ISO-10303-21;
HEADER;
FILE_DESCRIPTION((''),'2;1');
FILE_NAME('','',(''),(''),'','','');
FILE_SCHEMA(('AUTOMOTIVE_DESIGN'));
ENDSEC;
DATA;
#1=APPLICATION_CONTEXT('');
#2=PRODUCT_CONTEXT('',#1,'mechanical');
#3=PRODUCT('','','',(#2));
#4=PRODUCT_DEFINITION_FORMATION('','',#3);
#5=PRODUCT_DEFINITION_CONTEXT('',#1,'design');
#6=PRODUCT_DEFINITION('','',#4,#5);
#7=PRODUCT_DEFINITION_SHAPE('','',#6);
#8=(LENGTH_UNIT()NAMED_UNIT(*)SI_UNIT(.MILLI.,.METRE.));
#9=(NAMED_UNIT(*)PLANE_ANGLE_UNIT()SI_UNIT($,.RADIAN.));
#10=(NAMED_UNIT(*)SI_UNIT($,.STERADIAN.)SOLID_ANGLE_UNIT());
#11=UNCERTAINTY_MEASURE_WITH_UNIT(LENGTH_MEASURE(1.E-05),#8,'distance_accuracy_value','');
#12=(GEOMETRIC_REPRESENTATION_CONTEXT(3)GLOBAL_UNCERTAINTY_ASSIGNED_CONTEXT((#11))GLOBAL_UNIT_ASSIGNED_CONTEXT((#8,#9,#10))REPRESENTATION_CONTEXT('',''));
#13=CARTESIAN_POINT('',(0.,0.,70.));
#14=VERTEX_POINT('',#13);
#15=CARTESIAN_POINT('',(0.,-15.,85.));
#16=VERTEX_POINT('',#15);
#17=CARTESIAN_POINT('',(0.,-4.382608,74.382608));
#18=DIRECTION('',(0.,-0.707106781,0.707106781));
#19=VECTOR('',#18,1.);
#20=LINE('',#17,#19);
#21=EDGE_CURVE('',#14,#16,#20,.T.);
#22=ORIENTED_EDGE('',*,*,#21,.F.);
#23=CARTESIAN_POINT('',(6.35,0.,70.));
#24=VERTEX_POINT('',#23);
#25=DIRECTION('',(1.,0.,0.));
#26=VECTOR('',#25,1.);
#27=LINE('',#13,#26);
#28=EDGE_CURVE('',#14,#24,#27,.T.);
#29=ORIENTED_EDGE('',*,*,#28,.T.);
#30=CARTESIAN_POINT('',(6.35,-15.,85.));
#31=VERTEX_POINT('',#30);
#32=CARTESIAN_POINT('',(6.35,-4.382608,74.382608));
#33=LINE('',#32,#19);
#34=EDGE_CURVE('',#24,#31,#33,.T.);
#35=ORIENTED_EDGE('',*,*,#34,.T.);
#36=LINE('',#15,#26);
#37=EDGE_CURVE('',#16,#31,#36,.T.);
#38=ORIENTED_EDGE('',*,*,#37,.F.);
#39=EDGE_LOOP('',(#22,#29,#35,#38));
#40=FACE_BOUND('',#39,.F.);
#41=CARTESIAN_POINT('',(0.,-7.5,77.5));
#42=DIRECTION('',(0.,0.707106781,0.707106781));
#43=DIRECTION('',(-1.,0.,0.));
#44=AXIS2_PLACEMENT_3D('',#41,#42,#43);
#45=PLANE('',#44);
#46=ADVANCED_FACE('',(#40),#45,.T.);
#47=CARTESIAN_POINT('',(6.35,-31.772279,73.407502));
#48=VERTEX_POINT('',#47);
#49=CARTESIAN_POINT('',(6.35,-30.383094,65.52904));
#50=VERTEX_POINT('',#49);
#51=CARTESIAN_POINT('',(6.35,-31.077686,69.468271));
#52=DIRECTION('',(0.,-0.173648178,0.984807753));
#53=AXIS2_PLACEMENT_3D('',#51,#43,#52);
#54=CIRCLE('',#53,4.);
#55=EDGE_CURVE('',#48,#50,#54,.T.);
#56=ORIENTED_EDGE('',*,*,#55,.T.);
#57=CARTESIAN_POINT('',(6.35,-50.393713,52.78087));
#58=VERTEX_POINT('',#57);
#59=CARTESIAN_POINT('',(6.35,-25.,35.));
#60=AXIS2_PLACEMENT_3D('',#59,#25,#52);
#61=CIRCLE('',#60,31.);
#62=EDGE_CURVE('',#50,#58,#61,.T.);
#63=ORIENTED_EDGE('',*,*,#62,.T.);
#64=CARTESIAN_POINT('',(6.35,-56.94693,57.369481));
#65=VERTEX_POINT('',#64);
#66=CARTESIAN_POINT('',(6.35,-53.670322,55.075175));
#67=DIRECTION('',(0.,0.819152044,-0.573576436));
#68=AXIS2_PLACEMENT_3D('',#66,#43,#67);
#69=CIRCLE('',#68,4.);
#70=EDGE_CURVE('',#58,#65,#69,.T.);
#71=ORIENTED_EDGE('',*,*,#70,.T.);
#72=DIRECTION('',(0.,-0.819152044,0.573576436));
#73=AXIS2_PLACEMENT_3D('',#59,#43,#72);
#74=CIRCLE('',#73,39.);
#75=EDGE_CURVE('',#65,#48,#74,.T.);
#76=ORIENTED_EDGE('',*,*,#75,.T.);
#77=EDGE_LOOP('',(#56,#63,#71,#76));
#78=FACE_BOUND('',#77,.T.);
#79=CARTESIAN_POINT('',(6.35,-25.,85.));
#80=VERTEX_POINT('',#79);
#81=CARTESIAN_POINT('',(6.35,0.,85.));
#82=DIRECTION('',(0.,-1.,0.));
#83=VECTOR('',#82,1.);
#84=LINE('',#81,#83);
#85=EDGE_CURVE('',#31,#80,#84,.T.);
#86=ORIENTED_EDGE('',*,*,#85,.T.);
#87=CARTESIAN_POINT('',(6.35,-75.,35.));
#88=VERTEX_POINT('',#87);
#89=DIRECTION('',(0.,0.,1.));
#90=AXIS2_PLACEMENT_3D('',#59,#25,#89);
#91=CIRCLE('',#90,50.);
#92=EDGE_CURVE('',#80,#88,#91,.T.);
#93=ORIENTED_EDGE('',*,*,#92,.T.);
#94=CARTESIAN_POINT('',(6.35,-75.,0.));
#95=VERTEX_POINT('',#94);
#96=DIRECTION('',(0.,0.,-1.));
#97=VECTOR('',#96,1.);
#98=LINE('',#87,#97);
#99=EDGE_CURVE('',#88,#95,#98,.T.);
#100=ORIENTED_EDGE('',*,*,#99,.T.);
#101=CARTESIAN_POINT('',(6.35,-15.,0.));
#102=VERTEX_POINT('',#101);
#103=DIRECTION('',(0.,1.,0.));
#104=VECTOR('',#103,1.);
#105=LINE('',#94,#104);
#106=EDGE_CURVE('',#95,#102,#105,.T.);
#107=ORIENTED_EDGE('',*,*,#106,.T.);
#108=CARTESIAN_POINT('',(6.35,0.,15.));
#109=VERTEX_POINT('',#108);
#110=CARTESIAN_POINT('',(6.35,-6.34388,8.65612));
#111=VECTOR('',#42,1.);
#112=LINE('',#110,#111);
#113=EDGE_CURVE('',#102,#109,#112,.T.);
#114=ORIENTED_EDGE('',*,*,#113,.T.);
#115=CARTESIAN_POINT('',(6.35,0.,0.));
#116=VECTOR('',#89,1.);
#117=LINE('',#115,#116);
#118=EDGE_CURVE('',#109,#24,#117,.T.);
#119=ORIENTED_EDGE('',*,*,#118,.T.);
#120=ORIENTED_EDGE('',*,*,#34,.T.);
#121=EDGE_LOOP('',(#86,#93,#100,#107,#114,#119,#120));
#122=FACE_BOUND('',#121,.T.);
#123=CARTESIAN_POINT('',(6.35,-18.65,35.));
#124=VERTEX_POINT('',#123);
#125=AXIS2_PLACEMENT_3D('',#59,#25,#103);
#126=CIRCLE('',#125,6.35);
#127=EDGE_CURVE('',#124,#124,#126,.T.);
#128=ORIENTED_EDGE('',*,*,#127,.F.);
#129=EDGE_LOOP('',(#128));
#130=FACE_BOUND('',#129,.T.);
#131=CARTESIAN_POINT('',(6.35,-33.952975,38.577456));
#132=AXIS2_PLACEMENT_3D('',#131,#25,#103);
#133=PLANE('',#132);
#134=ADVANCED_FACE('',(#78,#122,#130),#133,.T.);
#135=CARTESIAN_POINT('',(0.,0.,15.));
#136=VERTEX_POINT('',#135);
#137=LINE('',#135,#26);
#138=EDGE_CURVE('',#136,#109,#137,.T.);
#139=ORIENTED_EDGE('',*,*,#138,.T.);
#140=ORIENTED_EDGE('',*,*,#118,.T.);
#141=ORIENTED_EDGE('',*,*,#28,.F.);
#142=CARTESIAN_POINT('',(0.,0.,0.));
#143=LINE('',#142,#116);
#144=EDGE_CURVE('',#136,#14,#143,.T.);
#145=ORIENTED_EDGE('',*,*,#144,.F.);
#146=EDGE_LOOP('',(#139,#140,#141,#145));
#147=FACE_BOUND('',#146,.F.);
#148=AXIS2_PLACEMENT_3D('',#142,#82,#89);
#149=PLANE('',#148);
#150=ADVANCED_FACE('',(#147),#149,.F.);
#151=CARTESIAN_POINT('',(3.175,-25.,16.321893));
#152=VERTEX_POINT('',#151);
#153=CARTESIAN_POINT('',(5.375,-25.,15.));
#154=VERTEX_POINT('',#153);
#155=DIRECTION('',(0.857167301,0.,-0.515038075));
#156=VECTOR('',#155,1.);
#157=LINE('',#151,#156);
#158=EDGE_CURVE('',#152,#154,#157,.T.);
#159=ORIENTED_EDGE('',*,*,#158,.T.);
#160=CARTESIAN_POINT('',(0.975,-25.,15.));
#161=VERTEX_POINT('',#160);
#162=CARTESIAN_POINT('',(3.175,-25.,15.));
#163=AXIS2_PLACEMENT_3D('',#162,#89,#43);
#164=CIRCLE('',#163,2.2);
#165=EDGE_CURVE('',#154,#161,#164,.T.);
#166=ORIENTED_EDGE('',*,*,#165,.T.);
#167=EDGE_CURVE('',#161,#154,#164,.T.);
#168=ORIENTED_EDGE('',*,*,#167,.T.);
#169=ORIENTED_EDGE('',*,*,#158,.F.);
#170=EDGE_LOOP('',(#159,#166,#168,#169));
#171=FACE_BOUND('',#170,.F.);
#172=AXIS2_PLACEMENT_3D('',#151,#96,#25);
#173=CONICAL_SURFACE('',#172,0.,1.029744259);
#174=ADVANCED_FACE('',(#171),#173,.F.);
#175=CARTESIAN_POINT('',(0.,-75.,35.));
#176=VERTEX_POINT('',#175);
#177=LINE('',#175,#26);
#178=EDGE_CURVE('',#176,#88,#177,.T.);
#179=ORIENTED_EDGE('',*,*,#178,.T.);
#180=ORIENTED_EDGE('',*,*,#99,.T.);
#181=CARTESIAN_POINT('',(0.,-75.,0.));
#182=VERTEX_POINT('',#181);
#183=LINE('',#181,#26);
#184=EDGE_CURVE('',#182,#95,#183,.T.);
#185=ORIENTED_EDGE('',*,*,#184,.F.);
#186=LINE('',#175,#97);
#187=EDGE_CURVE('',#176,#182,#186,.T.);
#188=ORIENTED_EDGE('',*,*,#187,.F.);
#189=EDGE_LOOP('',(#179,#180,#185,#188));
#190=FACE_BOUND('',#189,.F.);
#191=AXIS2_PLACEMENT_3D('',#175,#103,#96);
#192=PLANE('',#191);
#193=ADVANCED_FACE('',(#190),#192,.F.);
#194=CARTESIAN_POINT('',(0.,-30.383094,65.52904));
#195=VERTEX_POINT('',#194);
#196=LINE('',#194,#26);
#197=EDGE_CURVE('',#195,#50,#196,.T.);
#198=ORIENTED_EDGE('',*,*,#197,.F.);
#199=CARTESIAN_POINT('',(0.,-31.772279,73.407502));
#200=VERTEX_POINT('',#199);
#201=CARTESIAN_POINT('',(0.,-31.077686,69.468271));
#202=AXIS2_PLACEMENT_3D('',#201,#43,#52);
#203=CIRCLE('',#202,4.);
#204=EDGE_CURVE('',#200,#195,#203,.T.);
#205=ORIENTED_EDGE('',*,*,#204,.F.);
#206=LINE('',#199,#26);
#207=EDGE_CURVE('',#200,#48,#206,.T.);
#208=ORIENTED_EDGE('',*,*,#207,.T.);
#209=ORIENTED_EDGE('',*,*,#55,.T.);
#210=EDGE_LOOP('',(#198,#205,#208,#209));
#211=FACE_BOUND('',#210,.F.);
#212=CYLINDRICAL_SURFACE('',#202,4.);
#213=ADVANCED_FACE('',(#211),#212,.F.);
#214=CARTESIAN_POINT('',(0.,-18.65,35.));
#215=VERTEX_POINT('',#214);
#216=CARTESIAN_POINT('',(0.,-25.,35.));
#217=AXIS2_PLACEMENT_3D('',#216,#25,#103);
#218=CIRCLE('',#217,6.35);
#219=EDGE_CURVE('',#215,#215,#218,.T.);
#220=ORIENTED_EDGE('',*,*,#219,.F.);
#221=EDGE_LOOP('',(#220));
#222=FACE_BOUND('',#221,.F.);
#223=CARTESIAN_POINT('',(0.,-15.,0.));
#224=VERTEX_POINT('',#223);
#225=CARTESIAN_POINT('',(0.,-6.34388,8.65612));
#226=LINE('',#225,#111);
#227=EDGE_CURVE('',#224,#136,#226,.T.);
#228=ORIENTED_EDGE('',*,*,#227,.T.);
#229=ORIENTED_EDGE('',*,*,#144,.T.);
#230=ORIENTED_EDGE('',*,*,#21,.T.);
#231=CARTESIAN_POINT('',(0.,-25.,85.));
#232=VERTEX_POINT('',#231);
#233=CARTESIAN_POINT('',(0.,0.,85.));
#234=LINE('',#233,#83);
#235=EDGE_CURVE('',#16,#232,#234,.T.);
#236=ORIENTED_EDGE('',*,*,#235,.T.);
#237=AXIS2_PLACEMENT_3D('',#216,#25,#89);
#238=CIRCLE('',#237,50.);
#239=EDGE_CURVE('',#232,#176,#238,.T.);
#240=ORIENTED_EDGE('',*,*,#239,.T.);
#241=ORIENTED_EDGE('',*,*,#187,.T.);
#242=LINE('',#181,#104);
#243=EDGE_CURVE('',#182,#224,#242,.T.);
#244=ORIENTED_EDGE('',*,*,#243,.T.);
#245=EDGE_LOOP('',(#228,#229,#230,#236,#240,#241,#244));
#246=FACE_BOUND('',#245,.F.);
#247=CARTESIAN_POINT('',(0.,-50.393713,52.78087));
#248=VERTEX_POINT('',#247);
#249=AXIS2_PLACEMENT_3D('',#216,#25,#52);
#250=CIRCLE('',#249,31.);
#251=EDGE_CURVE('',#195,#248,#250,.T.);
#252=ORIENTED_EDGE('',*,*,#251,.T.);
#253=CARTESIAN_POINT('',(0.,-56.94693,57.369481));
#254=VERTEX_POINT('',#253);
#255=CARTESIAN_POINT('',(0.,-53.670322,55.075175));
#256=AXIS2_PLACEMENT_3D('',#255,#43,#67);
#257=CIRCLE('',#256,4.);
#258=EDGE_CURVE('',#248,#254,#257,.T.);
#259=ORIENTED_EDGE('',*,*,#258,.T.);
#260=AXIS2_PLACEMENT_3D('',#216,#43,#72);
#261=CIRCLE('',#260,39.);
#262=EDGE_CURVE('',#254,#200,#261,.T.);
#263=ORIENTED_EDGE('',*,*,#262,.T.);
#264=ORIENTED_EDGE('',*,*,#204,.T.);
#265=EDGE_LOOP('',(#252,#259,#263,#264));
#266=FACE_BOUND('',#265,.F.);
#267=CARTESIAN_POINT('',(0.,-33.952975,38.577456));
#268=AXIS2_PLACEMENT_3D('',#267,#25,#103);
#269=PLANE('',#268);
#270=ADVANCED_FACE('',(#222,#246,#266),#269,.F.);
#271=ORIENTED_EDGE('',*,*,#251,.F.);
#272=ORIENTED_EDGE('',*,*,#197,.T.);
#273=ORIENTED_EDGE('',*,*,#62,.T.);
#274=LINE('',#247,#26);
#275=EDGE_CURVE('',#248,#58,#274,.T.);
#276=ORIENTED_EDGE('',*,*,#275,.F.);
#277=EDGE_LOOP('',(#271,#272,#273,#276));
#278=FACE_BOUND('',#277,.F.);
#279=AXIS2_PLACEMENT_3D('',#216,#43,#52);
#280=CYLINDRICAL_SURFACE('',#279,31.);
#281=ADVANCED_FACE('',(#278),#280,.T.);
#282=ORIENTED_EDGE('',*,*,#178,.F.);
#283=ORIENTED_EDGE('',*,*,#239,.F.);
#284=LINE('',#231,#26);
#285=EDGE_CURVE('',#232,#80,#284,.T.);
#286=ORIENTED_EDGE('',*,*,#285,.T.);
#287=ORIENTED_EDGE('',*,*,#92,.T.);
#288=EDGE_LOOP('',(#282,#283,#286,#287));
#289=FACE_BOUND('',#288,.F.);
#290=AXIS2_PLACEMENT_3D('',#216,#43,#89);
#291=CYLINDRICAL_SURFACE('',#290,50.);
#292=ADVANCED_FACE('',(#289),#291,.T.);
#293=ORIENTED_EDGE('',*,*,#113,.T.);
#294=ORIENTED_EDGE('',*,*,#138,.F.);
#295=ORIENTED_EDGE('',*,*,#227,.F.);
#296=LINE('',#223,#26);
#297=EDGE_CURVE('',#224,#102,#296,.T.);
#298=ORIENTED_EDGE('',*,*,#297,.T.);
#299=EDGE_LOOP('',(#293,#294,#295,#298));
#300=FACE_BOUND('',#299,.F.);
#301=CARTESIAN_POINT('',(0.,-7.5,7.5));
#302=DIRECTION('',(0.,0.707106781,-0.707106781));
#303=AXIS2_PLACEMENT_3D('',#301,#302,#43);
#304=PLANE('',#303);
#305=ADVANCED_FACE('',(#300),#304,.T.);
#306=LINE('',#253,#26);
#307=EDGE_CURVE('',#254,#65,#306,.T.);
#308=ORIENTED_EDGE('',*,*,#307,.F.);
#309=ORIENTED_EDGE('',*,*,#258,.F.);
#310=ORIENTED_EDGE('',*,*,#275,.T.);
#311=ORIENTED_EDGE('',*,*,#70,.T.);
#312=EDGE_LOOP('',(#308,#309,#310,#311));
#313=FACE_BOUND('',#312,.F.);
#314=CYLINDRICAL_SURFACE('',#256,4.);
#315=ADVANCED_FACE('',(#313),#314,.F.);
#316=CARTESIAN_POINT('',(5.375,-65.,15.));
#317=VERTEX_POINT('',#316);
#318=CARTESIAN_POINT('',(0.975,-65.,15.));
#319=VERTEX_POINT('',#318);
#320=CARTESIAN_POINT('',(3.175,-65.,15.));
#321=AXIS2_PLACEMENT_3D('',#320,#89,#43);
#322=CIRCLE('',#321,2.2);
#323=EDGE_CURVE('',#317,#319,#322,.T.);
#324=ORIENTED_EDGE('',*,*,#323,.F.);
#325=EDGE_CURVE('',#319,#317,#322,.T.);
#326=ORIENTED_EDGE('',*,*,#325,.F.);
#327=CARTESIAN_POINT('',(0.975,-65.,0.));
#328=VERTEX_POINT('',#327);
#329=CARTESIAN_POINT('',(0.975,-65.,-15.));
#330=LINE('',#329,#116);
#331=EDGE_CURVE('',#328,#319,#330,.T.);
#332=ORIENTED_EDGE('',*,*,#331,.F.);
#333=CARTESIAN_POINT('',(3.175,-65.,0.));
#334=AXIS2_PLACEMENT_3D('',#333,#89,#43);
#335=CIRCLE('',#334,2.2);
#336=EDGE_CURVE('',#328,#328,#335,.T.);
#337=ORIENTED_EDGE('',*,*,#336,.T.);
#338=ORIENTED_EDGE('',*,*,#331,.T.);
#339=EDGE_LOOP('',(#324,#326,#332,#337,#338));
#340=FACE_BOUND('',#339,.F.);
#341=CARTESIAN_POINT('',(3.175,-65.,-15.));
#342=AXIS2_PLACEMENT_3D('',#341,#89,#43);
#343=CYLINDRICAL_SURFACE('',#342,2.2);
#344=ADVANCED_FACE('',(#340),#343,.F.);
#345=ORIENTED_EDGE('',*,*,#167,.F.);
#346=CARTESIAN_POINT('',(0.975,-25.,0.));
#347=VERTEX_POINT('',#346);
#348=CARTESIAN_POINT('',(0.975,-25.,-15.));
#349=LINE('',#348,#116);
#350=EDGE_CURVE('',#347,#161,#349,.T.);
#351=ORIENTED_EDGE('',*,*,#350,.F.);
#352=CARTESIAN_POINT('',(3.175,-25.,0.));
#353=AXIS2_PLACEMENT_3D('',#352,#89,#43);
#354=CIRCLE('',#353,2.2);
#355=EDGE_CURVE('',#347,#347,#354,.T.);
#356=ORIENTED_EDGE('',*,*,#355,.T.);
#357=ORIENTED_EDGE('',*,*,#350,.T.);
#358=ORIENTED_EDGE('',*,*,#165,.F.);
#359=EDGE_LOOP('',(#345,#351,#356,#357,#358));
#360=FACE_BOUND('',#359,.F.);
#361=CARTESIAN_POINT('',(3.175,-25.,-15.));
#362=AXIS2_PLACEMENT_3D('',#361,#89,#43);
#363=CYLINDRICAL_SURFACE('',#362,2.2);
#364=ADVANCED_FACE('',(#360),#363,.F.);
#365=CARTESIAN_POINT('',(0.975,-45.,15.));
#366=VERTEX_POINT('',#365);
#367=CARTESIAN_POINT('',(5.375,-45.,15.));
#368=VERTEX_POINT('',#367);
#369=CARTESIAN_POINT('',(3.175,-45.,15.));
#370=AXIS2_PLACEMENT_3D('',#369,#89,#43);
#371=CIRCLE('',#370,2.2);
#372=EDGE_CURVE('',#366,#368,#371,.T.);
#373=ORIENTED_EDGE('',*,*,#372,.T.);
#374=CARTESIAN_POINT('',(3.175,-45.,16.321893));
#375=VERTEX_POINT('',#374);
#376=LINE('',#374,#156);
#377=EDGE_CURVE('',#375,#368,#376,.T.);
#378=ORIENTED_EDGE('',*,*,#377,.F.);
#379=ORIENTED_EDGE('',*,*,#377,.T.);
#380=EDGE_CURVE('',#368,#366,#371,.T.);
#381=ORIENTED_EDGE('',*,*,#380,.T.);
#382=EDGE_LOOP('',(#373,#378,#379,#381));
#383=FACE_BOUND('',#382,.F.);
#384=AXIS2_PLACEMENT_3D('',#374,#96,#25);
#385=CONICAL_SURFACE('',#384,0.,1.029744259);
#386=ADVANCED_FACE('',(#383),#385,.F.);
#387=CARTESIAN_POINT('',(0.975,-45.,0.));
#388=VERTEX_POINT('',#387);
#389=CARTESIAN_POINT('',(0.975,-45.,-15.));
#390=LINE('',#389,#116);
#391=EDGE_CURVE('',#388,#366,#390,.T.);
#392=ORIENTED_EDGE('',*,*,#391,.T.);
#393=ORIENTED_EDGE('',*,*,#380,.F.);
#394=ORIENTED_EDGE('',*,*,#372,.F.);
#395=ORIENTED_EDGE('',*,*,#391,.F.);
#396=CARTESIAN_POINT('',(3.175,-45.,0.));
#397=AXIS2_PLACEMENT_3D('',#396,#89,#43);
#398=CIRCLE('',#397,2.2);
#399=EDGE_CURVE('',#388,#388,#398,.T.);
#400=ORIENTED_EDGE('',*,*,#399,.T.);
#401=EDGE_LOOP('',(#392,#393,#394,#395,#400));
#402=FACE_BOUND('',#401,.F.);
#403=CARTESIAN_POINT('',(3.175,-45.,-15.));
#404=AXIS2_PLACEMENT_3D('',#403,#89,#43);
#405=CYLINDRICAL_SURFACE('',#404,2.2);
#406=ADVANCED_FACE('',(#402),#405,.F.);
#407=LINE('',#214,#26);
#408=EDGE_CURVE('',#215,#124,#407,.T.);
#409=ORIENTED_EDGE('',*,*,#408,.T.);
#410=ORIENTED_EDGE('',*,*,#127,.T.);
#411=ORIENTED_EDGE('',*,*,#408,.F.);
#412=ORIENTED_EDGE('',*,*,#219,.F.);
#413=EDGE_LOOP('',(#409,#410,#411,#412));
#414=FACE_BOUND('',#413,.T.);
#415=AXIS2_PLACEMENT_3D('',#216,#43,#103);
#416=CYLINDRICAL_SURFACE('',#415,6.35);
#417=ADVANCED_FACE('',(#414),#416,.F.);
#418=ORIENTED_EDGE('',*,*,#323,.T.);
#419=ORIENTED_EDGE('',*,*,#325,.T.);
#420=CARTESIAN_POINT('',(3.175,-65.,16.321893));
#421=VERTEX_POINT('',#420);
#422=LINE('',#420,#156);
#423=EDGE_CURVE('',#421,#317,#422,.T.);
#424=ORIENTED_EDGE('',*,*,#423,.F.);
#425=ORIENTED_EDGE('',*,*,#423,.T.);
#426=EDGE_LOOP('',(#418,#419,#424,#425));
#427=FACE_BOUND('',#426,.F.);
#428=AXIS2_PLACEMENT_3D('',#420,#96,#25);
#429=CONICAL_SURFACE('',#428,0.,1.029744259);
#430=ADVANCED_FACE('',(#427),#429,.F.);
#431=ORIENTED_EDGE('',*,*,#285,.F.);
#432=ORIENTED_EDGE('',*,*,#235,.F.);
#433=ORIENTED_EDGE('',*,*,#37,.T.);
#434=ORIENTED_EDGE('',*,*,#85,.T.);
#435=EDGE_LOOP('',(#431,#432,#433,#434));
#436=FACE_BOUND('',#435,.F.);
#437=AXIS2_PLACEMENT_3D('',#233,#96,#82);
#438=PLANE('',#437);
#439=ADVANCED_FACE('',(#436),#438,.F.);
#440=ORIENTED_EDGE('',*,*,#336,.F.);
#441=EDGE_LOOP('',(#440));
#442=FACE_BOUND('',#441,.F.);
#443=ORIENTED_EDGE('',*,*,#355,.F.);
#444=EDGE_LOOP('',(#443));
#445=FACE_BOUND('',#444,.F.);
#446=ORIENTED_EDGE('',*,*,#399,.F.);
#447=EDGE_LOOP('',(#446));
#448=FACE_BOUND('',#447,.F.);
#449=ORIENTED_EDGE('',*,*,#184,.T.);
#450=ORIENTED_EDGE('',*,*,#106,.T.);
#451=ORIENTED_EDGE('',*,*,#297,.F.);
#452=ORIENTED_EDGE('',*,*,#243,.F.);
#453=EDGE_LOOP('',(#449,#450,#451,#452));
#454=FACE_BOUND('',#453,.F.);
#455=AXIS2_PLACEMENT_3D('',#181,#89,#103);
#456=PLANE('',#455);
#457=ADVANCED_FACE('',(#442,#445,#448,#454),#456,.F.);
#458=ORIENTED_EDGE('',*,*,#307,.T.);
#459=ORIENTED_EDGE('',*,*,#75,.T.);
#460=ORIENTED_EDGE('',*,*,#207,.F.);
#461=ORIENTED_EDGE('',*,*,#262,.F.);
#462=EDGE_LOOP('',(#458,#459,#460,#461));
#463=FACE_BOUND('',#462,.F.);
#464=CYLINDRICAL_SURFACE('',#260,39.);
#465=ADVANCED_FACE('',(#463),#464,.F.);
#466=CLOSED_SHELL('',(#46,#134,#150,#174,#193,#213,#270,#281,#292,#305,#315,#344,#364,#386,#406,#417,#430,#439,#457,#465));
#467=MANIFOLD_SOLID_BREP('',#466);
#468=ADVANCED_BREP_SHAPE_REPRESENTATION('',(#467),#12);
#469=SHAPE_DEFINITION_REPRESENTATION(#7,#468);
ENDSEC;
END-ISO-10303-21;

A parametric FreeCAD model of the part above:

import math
import FreeCAD as App
import Part
import Sketcher

V = App.Vector


def edges_at(feature, points):
    """Names of the edges that pass closest to the given points."""
    edges = feature.Shape.Edges
    near = lambda p: min(range(len(edges)), key=lambda i: edges[i].distToShape(Part.Vertex(*p))[0])
    return sorted({f"Edge{near(p) + 1}" for p in points})

doc = App.newDocument("Part")
body = doc.addObject("PartDesign::Body", "Body")

# Sketch on YZ plane
sketch1 = doc.addObject("Sketcher::SketchObject", "Sketch")
body.addObject(sketch1)
sketch1.AttachmentSupport = (doc.YZ_Plane, [""])
sketch1.MapMode = "FlatFace"
sketch1.addGeometry([
    Part.LineSegment(V(-75, 0, 0), V(0, 0, 0)),  # 0
    Part.LineSegment(V(0, 0, 0), V(0, 85, 0)),  # 1
    Part.LineSegment(V(0, 85, 0), V(-25, 85, 0)),  # 2
    Part.ArcOfCircle(Part.Circle(V(-25, 35, 0), V(0, 0, 1), 50), math.radians(90), math.radians(180)),  # 3
    Part.LineSegment(V(-75, 35, 0), V(-75, 0, 0)),  # 4
    Part.Circle(V(-25, 35, 0), V(0, 0, 1), 6.3),  # 5
    Part.ArcOfCircle(Part.Circle(V(-25, 35, 0), V(0, 0, 1), 31), math.radians(100), math.radians(145)),  # 6
    Part.ArcOfCircle(Part.Circle(V(-53.7, 55.1, 0), V(0, 0, 1), 4), math.radians(145), math.radians(325)),  # 7
    Part.ArcOfCircle(Part.Circle(V(-25, 35, 0), V(0, 0, 1), 39), math.radians(100), math.radians(145)),  # 8
    Part.ArcOfCircle(Part.Circle(V(-31.1, 69.5, 0), V(0, 0, 1), 4), math.radians(-80), math.radians(100)),  # 9
], False)
sketch1.addConstraint([
    Sketcher.Constraint("Coincident", 0, 2, 1, 1),
    Sketcher.Constraint("Coincident", 1, 2, 2, 1),
    Sketcher.Constraint("Tangent", 2, 2, 3, 1),
    Sketcher.Constraint("Tangent", 3, 2, 4, 1),
    Sketcher.Constraint("Coincident", 4, 2, 0, 1),
    Sketcher.Constraint("Tangent", 6, 2, 7, 2),
    Sketcher.Constraint("Tangent", 7, 1, 8, 2),
    Sketcher.Constraint("Tangent", 8, 1, 9, 2),
    Sketcher.Constraint("Tangent", 9, 1, 6, 1),
    Sketcher.Constraint("Horizontal", 0),
    Sketcher.Constraint("Vertical", 1),
    Sketcher.Constraint("Horizontal", 2),
    Sketcher.Constraint("Vertical", 4),
    Sketcher.Constraint("Coincident", 0, 2, -1, 1),
    Sketcher.Constraint("Coincident", 5, 3, 3, 3),
    Sketcher.Constraint("Coincident", 6, 3, 3, 3),
    Sketcher.Constraint("Coincident", 8, 3, 3, 3),
    Sketcher.Constraint("Radius", 3, 50.0),
    Sketcher.Constraint("Radius", 6, 31.0),
    Sketcher.Constraint("Radius", 7, 4.0),
    Sketcher.Constraint("Diameter", 5, 12.7),
    Sketcher.Constraint("DistanceX", 0, 1, 0, 2, 75.0),
    Sketcher.Constraint("DistanceY", 1, 1, 1, 2, 85.0),
    Sketcher.Constraint("DistanceY", 6, 2, 9, 3, 16.687402),
    Sketcher.Constraint("DistanceX", 7, 3, -1, 1, 53.670322),
])
pad1 = doc.addObject("PartDesign::Pad", "Pad")
body.addObject(pad1)
pad1.Profile = sketch1
pad1.Length = 6.35
doc.recompute()

chamfer = doc.addObject("PartDesign::Chamfer", "Chamfer")
body.addObject(chamfer)
chamfer.Base = (pad1, edges_at(pad1, [(3.175, 0, 85), (3.175, 0, 0)]))
chamfer.Size = 15

# Sketch on XY plane
sketch2 = doc.addObject("Sketcher::SketchObject", "Sketch001")
body.addObject(sketch2)
sketch2.AttachmentSupport = (doc.XY_Plane, [""])
sketch2.MapMode = "FlatFace"
sketch2.addGeometry([
    Part.Circle(V(3.2, -65, 0), V(0, 0, 1), 2.2),
    Part.Circle(V(3.2, -45, 0), V(0, 0, 1), 2.2),
    Part.Circle(V(3.2, -25, 0), V(0, 0, 1), 2.2),
], False)
sketch2.addConstraint([
    Sketcher.Constraint("Equal", 0, 1),
    Sketcher.Constraint("Equal", 1, 2),
    Sketcher.Constraint("Vertical", 0, 3, 1, 3),
    Sketcher.Constraint("Vertical", 1, 3, 2, 3),
    Sketcher.Constraint("Diameter", 0, 4.4),
    Sketcher.Constraint("DistanceY", 0, 3, -1, 1, 65.0),
    Sketcher.Constraint("DistanceY", 1, 3, -1, 1, 45.0),
    Sketcher.Constraint("DistanceY", 2, 3, -1, 1, 25.0),
    Sketcher.Constraint("DistanceX", -1, 1, 0, 3, 3.175),
])
doc.recompute()
hole = doc.addObject("PartDesign::Hole", "Hole")
body.addObject(hole)
hole.Profile = sketch2
hole.ThreadType = "None"
hole.Diameter = 4.4
hole.DepthType = "Dimension"
hole.Depth = 15
hole.DrillPoint = "Angled"
hole.DrillPointAngle = 118
hole.Reversed = True

doc.recompute()
